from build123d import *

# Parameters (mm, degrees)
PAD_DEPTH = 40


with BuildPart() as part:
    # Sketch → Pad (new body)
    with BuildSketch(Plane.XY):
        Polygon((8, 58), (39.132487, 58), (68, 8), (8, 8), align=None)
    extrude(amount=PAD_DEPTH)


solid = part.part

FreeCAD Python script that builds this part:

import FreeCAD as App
import Part
import Sketcher

V = App.Vector
Q = App.Units.Quantity


def add_polygon(sketch, points):
    """Adds a closed chain of lines whose ends are joined by coincident constraints."""
    first, n = sketch.GeometryCount, len(points)
    for a, b in zip(points, points[1:] + points[:1]):
        sketch.addGeometry(Part.LineSegment(App.Vector(*a, 0), App.Vector(*b, 0)), False)
    for i in range(n):
        sketch.addConstraint(Sketcher.Constraint("Coincident", first + i, 2, first + (i + 1) % n, 1))

doc = App.newDocument("Part")
params = doc.addObject("Spreadsheet::Sheet", "Params")
for row, (alias, value) in enumerate([
    ("sketch1_width", "60 mm"),
    ("sketch1_height", "50 mm"),
    ("pad1_length", "40 mm"),
], start=1):
    params.set(f"A{row}", alias)
    params.set(f"B{row}", "=" + value)
    params.setAlias(f"B{row}", alias)

body = doc.addObject("PartDesign::Body", "Body")

sketch1 = doc.addObject("Sketcher::SketchObject", "Sketch")
body.addObject(sketch1)
sketch1.AttachmentSupport = (doc.XY_Plane, [""])
sketch1.MapMode = "FlatFace"
add_polygon(sketch1, [(39.132487, 58), (8, 58), (8, 8), (68, 8)])
sketch1.addConstraint([
    Sketcher.Constraint("Horizontal", 0),
    Sketcher.Constraint("Vertical", 1),
    Sketcher.Constraint("Horizontal", 2),
    Sketcher.Constraint("DistanceX", 2, 1, 2, 2, 60.0),
    Sketcher.Constraint("DistanceY", 1, 2, 1, 1, 50.0),
    Sketcher.Constraint("Angle", 3, Q("120 deg")),
    Sketcher.Constraint("DistanceX", -1, 1, 0, 2, 8.0),
    Sketcher.Constraint("DistanceY", -1, 1, 0, 2, 58.0),
])
sketch1.setExpression("Constraints[7]", "Params.sketch1_width")
sketch1.setExpression("Constraints[8]", "Params.sketch1_height")
pad1 = doc.addObject("PartDesign::Pad", "Pad")
body.addObject(pad1)
pad1.Profile = sketch1
pad1.setExpression("Length", "Params.pad1_length")

doc.recompute()
